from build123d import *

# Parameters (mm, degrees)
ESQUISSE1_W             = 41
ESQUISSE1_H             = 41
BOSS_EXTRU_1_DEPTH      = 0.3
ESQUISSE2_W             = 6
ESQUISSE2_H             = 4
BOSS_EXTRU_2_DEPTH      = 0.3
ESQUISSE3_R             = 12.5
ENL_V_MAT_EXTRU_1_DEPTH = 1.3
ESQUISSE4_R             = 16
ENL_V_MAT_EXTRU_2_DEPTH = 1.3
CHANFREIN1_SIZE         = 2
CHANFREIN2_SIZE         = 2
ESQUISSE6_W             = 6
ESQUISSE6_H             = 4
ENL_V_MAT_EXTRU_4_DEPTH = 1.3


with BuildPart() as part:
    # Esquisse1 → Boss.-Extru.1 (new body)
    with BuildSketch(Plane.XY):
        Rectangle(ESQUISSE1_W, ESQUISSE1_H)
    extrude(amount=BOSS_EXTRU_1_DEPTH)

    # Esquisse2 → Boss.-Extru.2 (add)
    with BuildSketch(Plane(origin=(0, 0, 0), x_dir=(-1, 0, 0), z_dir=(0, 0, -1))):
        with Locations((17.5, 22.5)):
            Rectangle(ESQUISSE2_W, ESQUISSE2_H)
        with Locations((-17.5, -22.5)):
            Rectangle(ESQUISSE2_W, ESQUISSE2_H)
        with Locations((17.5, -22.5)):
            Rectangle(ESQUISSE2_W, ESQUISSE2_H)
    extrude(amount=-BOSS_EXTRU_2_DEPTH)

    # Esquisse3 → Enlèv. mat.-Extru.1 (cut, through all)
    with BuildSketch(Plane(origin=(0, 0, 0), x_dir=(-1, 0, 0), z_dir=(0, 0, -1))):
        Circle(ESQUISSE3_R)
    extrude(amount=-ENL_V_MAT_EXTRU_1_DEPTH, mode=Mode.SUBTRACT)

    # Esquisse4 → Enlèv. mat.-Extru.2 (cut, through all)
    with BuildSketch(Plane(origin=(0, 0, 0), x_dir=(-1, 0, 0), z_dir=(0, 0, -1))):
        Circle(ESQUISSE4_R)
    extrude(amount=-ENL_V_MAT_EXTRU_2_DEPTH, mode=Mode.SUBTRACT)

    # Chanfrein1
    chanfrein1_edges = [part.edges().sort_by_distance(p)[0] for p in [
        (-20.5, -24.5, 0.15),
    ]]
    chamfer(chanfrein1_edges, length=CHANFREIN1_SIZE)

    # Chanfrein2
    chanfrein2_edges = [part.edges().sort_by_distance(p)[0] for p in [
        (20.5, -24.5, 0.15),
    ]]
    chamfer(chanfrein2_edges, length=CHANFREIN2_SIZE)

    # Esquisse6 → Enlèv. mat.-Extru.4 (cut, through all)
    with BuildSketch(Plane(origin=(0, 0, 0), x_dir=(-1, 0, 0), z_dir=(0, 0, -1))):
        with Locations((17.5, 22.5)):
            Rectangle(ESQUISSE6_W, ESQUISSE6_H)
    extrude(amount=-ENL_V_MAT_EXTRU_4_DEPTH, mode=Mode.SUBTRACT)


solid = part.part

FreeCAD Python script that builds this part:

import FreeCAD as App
import Part
import Sketcher
Q = App.Units.Quantity


def edges_at(feature, points):
    """Names of the edges that pass closest to the given points."""
    edges = feature.Shape.Edges
    near = lambda p: min(range(len(edges)), key=lambda i: edges[i].distToShape(Part.Vertex(*p))[0])
    return sorted({f"Edge{near(p) + 1}" for p in points})


def add_polygon(sketch, points):
    """Adds a closed chain of lines whose ends are joined by coincident constraints."""
    first, n = sketch.GeometryCount, len(points)
    for a, b in zip(points, points[1:] + points[:1]):
        sketch.addGeometry(Part.LineSegment(App.Vector(*a, 0), App.Vector(*b, 0)), False)
    for i in range(n):
        sketch.addConstraint(Sketcher.Constraint("Coincident", first + i, 2, first + (i + 1) % n, 1))

doc = App.newDocument("Part")
body = doc.addObject("PartDesign::Body", "Body")

# Sketch on XY plane
sketch1 = body.newObject("Sketcher::SketchObject", "Sketch")
sketch1.AttachmentSupport = (doc.getObject("XY_Plane"), [""])
sketch1.MapMode = "FlatFace"
add_polygon(sketch1, [(-20.5, 20.5), (-20.5, -20.5), (20.5, -20.5), (20.5, 20.5)])  # lines 0-3
sketch1.addConstraint([
    Sketcher.Constraint("Vertical", 0),
    Sketcher.Constraint("Horizontal", 1),
    Sketcher.Constraint("Vertical", 2),
    Sketcher.Constraint("Horizontal", 3),
    Sketcher.Constraint("Symmetric", 0, 2, 2, 2, -1, 1),
    Sketcher.Constraint("Equal", 3, 0),
    Sketcher.Constraint("DistanceX", 1, 1, 1, 2, Q("41 mm")),
])
pad1 = body.newObject("PartDesign::Pad", "Pad")
pad1.Profile = sketch1
pad1.Length = 0.3

# Sketch on XY plane
sketch2 = body.newObject("Sketcher::SketchObject", "Sketch001")
sketch2.AttachmentSupport = (doc.getObject("XY_Plane"), [""])
sketch2.MapMode = "FlatFace"
add_polygon(sketch2, [(-14.5, 24.5), (-14.5, 20.5), (-20.5, 20.5), (-20.5, 24.5)])  # lines 0-3
add_polygon(sketch2, [(20.5, -20.5), (20.5, -24.5), (14.5, -24.5), (14.5, -20.5)])  # lines 4-7
add_polygon(sketch2, [(-14.5, -20.5), (-14.5, -24.5), (-20.5, -24.5), (-20.5, -20.5)])  # lines 8-11
sketch2.addConstraint([
    Sketcher.Constraint("Vertical", 0),
    Sketcher.Constraint("Horizontal", 1),
    Sketcher.Constraint("Vertical", 2),
    Sketcher.Constraint("Horizontal", 3),
    Sketcher.Constraint("Vertical", 4),
    Sketcher.Constraint("Horizontal", 5),
    Sketcher.Constraint("Vertical", 6),
    Sketcher.Constraint("Horizontal", 7),
    Sketcher.Constraint("Vertical", 8),
    Sketcher.Constraint("Horizontal", 9),
    Sketcher.Constraint("Vertical", 10),
    Sketcher.Constraint("Horizontal", 11),
    Sketcher.Constraint("Symmetric", 2, 2, 4, 2, -1, 1),
    Sketcher.Constraint("Symmetric", 0, 2, 6, 2, -1, 1),
    Sketcher.Constraint("Symmetric", 5, 2, 8, 2, -2),
    Sketcher.Constraint("Symmetric", 7, 2, 10, 2, -2),
    Sketcher.Constraint("DistanceX", 1, 2, 1, 1, Q("6 mm")),
    Sketcher.Constraint("DistanceY", 0, 2, 0, 1, Q("4 mm")),
    Sketcher.Constraint("DistanceX", 0, 2, 4, 2, Q("35 mm")),
    Sketcher.Constraint("DistanceY", 4, 2, 0, 2, Q("45 mm")),
])
pad2 = body.newObject("PartDesign::Pad", "Pad001")
pad2.Profile = sketch2
pad2.Length = 0.3

# Sketch on XY plane
sketch3 = body.newObject("Sketcher::SketchObject", "Sketch002")
sketch3.AttachmentSupport = (doc.getObject("XY_Plane"), [""])
sketch3.MapMode = "FlatFace"
sketch3.addGeometry(Part.Circle(App.Vector(0, 0, 0), App.Vector(0, 0, 1), 12.5), False)
sketch3.addConstraint([
    Sketcher.Constraint("Coincident", 0, 3, -1, 1),
    Sketcher.Constraint("Diameter", 0, Q("25 mm")),
])
pocket1 = body.newObject("PartDesign::Pocket", "Pocket")
pocket1.Profile = sketch3
pocket1.Type = "ThroughAll"
pocket1.Reversed = True

# Sketch on XY plane
sketch4 = body.newObject("Sketcher::SketchObject", "Sketch003")
sketch4.AttachmentSupport = (doc.getObject("XY_Plane"), [""])
sketch4.MapMode = "FlatFace"
sketch4.addGeometry(Part.Circle(App.Vector(0, 0, 0), App.Vector(0, 0, 1), 16), False)
sketch4.addConstraint([
    Sketcher.Constraint("Coincident", 0, 3, -1, 1),
    Sketcher.Constraint("Diameter", 0, Q("32 mm")),
])
pocket2 = body.newObject("PartDesign::Pocket", "Pocket001")
pocket2.Profile = sketch4
pocket2.Type = "ThroughAll"
pocket2.Reversed = True
doc.recompute()

chamfer = body.newObject("PartDesign::Chamfer", "Chamfer")
chamfer.Base = (pocket2, edges_at(pocket2, [(-20.5, -24.5, 0.15)]))
chamfer.Size = 2
doc.recompute()

chamfer2 = body.newObject("PartDesign::Chamfer", "Chamfer001")
chamfer2.Base = (chamfer, edges_at(chamfer, [(20.5, -24.5, 0.15)]))
chamfer2.Size = 2

# Sketch on XY plane
sketch5 = body.newObject("Sketcher::SketchObject", "Sketch004")
sketch5.AttachmentSupport = (doc.getObject("XY_Plane"), [""])
sketch5.MapMode = "FlatFace"
add_polygon(sketch5, [(-14.5, 24.5), (-14.5, 20.5), (-20.5, 20.5), (-20.5, 24.5)])  # lines 0-3
sketch5.addConstraint([
    Sketcher.Constraint("Vertical", 0),
    Sketcher.Constraint("Horizontal", 1),
    Sketcher.Constraint("Vertical", 2),
    Sketcher.Constraint("Horizontal", 3),
    Sketcher.Constraint("DistanceX", 1, 2, 1, 1, Q("6 mm")),
    Sketcher.Constraint("DistanceY", 0, 2, 0, 1, Q("4 mm")),
    Sketcher.Constraint("DistanceX", 0, 2, -1, 1, Q("14.5 mm")),
    Sketcher.Constraint("DistanceY", -1, 1, 0, 2, Q("20.5 mm")),
])
pocket3 = body.newObject("PartDesign::Pocket", "Pocket002")
pocket3.Profile = sketch5
pocket3.Type = "ThroughAll"
pocket3.Reversed = True

doc.recompute()
